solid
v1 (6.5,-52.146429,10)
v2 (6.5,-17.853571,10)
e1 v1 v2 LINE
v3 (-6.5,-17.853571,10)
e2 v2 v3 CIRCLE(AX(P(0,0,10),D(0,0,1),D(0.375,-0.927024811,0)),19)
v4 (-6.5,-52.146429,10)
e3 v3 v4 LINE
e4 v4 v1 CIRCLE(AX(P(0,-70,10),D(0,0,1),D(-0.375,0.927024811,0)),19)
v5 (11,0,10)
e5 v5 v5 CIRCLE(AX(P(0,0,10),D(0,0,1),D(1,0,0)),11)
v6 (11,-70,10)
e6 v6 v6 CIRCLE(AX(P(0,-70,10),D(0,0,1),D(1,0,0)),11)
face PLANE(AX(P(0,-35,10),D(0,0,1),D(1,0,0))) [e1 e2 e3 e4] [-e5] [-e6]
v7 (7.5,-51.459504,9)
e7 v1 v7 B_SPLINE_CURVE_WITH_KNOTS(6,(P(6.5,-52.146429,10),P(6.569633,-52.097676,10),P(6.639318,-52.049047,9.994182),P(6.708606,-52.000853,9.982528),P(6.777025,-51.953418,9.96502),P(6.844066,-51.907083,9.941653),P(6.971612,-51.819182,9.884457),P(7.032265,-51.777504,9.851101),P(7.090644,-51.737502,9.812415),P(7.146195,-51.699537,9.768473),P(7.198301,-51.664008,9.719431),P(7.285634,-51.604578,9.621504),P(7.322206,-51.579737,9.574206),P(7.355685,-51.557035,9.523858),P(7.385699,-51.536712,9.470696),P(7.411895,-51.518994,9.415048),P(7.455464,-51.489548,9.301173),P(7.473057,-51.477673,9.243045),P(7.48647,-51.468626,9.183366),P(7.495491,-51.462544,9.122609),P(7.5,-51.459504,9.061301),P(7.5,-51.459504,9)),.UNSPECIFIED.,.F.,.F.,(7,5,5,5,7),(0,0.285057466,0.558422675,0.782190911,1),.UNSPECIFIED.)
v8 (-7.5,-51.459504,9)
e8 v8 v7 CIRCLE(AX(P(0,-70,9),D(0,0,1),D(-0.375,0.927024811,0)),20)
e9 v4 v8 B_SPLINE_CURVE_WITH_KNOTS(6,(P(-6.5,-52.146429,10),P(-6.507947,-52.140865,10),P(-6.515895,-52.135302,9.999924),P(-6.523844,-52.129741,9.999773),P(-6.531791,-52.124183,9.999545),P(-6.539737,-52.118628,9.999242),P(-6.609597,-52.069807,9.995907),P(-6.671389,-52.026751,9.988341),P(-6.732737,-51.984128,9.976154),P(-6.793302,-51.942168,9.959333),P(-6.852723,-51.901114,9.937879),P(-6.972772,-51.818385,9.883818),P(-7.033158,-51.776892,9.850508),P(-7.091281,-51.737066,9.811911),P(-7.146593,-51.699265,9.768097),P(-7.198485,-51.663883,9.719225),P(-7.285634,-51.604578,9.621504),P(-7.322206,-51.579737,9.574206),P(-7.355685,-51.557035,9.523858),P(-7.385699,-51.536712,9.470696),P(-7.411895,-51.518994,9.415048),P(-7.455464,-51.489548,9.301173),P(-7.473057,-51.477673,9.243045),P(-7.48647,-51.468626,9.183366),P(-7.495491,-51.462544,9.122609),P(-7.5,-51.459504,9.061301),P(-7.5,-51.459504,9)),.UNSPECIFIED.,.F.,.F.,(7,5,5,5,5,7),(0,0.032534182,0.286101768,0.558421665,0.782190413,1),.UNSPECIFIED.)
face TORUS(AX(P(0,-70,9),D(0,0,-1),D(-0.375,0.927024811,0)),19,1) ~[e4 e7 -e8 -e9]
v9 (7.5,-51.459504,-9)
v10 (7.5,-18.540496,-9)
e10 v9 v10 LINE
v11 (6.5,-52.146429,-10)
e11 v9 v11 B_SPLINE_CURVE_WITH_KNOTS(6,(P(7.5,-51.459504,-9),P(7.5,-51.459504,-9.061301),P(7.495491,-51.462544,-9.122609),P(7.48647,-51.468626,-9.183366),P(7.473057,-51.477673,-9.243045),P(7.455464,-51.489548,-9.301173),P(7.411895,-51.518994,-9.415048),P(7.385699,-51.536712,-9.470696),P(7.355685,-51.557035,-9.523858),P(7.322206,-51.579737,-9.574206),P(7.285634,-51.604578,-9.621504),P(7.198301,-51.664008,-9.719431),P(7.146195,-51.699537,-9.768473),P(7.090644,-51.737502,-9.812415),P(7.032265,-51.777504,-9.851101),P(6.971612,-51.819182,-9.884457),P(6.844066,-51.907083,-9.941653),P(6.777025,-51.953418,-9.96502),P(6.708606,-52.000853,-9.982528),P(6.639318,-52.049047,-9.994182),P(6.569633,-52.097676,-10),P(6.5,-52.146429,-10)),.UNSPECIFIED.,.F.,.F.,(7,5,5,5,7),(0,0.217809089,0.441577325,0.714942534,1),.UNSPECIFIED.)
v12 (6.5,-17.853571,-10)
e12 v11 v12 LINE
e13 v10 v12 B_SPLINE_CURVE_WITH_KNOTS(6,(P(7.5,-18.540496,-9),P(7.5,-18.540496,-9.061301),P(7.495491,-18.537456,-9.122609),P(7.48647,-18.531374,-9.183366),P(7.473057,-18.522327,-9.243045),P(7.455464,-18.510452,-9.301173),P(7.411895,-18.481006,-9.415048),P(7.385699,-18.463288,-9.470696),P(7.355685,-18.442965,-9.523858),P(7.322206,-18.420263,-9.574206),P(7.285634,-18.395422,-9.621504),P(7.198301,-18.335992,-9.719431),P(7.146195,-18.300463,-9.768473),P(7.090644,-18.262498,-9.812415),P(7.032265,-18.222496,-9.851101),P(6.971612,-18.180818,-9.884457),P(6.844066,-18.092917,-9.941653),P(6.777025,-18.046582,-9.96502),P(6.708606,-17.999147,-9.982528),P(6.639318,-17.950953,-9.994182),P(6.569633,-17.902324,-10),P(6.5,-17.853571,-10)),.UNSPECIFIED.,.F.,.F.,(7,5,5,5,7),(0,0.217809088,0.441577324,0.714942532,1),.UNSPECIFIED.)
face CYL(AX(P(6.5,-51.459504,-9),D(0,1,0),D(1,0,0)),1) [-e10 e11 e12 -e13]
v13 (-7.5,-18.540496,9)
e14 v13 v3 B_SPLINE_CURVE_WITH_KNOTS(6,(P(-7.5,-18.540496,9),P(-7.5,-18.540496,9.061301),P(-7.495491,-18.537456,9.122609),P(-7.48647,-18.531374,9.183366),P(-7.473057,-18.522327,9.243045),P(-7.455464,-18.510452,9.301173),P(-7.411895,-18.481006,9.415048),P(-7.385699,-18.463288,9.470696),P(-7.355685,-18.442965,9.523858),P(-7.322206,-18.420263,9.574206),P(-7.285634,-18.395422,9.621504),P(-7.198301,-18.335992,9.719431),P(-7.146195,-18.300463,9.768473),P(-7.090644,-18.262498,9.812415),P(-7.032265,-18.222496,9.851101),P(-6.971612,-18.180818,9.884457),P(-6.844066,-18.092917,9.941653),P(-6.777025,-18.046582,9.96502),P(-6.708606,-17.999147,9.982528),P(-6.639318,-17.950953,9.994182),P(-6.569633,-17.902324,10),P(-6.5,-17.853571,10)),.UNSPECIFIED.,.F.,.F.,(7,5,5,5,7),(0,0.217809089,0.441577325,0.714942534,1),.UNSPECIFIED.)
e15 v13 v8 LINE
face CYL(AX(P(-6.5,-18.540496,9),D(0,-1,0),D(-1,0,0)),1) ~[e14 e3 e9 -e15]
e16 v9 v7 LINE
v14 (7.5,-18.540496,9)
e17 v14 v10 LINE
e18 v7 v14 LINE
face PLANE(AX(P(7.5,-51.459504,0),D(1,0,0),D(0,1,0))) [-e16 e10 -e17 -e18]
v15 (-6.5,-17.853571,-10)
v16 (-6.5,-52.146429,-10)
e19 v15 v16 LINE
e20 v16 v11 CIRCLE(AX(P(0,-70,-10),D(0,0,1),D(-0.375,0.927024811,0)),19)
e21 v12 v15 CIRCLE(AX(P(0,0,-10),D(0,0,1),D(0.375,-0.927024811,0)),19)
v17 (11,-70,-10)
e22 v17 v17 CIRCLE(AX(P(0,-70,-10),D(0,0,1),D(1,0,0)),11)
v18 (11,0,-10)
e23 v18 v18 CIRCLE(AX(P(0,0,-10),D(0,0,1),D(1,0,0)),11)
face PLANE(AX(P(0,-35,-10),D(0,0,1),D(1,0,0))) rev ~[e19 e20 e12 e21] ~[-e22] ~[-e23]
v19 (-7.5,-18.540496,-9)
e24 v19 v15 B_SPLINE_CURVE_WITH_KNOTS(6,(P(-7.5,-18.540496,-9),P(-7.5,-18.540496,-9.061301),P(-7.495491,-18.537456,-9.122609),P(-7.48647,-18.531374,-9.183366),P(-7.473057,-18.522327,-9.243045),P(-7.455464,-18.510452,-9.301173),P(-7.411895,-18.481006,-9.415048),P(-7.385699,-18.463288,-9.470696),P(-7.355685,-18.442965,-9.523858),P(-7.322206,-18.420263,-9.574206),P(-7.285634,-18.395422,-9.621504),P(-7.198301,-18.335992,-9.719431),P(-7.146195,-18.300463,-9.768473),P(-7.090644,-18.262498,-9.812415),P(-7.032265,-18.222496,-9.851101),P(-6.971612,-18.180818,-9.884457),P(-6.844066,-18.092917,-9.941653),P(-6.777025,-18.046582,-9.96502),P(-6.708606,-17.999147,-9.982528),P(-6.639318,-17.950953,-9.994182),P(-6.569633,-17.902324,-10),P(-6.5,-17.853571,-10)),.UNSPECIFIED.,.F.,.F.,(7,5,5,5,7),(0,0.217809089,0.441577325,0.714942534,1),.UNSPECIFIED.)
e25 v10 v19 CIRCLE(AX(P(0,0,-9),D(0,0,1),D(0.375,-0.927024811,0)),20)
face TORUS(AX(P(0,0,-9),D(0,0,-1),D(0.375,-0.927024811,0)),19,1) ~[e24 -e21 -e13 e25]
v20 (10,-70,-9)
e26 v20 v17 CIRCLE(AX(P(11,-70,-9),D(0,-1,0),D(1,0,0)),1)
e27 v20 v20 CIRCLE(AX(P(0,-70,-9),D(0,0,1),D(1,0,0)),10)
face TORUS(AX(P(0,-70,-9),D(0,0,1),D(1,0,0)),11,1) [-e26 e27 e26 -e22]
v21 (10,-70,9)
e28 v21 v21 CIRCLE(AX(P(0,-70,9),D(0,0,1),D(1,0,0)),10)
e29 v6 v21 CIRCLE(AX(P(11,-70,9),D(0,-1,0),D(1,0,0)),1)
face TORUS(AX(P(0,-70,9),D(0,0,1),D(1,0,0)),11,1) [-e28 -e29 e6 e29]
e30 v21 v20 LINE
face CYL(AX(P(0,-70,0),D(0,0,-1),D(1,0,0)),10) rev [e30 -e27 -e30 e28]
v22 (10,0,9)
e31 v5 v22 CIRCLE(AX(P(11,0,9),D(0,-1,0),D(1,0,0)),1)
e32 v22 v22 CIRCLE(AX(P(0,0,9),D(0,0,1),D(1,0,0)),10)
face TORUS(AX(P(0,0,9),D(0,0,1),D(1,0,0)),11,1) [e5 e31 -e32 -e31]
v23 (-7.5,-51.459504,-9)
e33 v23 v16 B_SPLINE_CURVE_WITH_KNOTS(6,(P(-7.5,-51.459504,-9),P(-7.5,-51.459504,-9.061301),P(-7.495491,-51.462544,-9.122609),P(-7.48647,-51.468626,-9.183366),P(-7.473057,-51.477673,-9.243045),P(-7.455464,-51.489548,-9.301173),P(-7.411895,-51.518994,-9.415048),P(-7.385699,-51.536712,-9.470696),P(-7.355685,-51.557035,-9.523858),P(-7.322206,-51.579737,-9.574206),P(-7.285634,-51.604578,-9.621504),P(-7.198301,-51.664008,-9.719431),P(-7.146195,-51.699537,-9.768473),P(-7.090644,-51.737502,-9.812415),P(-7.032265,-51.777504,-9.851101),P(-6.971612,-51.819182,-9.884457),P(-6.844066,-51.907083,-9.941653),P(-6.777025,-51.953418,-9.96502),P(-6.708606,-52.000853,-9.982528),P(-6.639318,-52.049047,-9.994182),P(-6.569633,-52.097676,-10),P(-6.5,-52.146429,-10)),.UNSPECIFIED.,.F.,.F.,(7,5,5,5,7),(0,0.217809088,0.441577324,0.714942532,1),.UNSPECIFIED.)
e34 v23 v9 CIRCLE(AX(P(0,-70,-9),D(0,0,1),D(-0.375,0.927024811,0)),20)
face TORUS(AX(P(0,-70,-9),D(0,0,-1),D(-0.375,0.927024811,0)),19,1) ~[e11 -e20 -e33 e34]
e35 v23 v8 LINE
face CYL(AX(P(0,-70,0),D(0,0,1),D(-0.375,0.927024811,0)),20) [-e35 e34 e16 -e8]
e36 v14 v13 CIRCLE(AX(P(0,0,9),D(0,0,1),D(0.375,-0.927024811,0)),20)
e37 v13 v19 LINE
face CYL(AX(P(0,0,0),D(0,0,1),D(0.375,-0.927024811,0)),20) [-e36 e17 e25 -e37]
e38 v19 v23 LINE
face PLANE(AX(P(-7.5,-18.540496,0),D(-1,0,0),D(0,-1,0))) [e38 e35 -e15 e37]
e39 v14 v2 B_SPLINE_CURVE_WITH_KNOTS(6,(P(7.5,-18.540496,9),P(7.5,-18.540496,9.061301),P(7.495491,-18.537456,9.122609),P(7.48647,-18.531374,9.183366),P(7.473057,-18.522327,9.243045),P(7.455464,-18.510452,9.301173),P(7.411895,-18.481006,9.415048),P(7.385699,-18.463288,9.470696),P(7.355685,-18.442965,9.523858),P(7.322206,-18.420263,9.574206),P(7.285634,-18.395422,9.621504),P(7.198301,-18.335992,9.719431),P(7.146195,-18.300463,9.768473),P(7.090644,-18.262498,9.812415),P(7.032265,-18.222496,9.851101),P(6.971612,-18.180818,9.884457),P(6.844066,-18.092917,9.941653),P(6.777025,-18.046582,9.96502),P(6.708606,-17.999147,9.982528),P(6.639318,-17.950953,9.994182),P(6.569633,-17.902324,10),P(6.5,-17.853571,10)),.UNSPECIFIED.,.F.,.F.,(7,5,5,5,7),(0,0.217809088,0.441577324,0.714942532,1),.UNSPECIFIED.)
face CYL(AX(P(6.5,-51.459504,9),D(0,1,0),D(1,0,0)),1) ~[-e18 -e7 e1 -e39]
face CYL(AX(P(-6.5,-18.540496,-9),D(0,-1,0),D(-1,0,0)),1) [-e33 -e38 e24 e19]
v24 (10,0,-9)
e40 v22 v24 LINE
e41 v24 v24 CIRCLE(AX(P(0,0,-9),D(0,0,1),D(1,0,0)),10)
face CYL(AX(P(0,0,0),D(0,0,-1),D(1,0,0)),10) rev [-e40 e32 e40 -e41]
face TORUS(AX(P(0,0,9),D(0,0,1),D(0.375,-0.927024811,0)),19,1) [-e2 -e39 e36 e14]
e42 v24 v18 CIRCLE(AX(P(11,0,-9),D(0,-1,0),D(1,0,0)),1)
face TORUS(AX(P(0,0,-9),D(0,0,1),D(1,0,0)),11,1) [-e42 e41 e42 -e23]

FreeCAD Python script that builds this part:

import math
import FreeCAD as App
import Part
import Sketcher

V = App.Vector
Q = App.Units.Quantity


def edges_at(feature, points):
    """Names of the edges that pass closest to the given points."""
    edges = feature.Shape.Edges
    near = lambda p: min(range(len(edges)), key=lambda i: edges[i].distToShape(Part.Vertex(*p))[0])
    return sorted({f"Edge{near(p) + 1}" for p in points})

doc = App.newDocument("Part")
body = doc.addObject("PartDesign::Body", "Body")

# Sketch on XY plane
sketch1 = body.newObject("Sketcher::SketchObject", "Sketch")
sketch1.AttachmentSupport = (doc.getObject("XY_Plane"), [""])
sketch1.MapMode = "FlatFace"
sketch1.addGeometry(Part.LineSegment(V(-7.5, -18.540496, 0), V(-7.5, -51.459504, 0)), False)
sketch1.addGeometry(Part.ArcOfCircle(Part.Circle(V(0, -70, 0), V(0, 0, 1), 20), math.radians(112.024313), math.radians(427.975687)), False)
sketch1.addGeometry(Part.LineSegment(V(7.5, -51.459504, 0), V(7.5, -18.540496, 0)), False)
sketch1.addGeometry(Part.ArcOfCircle(Part.Circle(V(0, 0, 0), V(0, 0, 1), 20), math.radians(-67.975687), math.radians(247.975687)), False)
sketch1.addGeometry(Part.Circle(V(0, -70, 0), V(0, 0, 1), 10), False)
sketch1.addGeometry(Part.Circle(V(0, 0, 0), V(0, 0, 1), 10), False)
sketch1.addConstraint(Sketcher.Constraint("Coincident", 0, 2, 1, 1))
sketch1.addConstraint(Sketcher.Constraint("Coincident", 1, 2, 2, 1))
sketch1.addConstraint(Sketcher.Constraint("Coincident", 2, 2, 3, 1))
sketch1.addConstraint(Sketcher.Constraint("Coincident", 3, 2, 0, 1))
sketch1.addConstraint(Sketcher.Constraint("Vertical", 0))
sketch1.addConstraint(Sketcher.Constraint("Vertical", 2))
sketch1.addConstraint(Sketcher.Constraint("Coincident", 3, 3, -1, 1))
sketch1.addConstraint(Sketcher.Constraint("Coincident", 5, 3, -1, 1))
sketch1.addConstraint(Sketcher.Constraint("Coincident", 4, 3, 1, 3))
sketch1.addConstraint(Sketcher.Constraint("Equal", 1, 3))
sketch1.addConstraint(Sketcher.Constraint("Equal", 4, 5))
sketch1.addConstraint(Sketcher.Constraint("Symmetric", 0, 2, 1, 2, -2))
sketch1.addConstraint(Sketcher.Constraint("Diameter", 4, Q("20 mm")))
sketch1.addConstraint(Sketcher.Constraint("Radius", 1, Q("20 mm")))
sketch1.addConstraint(Sketcher.Constraint("DistanceY", 1, 3, -1, 1, Q("70 mm")))
sketch1.addConstraint(Sketcher.Constraint("DistanceX", 0, 2, 1, 2, Q("15 mm")))
pad1 = body.newObject("PartDesign::Pad", "Pad")
pad1.Profile = sketch1
pad1.Length = 20
pad1.Midplane = True
doc.recompute()

fillet = body.newObject("PartDesign::Fillet", "Fillet")
fillet.Base = (pad1, edges_at(pad1, [
    (-10, 0, -10),
    (-10, 0, 10),
    (0, -90, 10),
    (-10, -70, -10),
    (-10, -70, 10),
    (7.5, -35, 10),
    (0, 20, 10),
    (7.5, -35, -10),
    (0, -90, -10),
    (-7.5, -35, -10),
    (0, 20, -10),
    (-7.5, -35, 10),
]))
fillet.Radius = 1

doc.recompute()
